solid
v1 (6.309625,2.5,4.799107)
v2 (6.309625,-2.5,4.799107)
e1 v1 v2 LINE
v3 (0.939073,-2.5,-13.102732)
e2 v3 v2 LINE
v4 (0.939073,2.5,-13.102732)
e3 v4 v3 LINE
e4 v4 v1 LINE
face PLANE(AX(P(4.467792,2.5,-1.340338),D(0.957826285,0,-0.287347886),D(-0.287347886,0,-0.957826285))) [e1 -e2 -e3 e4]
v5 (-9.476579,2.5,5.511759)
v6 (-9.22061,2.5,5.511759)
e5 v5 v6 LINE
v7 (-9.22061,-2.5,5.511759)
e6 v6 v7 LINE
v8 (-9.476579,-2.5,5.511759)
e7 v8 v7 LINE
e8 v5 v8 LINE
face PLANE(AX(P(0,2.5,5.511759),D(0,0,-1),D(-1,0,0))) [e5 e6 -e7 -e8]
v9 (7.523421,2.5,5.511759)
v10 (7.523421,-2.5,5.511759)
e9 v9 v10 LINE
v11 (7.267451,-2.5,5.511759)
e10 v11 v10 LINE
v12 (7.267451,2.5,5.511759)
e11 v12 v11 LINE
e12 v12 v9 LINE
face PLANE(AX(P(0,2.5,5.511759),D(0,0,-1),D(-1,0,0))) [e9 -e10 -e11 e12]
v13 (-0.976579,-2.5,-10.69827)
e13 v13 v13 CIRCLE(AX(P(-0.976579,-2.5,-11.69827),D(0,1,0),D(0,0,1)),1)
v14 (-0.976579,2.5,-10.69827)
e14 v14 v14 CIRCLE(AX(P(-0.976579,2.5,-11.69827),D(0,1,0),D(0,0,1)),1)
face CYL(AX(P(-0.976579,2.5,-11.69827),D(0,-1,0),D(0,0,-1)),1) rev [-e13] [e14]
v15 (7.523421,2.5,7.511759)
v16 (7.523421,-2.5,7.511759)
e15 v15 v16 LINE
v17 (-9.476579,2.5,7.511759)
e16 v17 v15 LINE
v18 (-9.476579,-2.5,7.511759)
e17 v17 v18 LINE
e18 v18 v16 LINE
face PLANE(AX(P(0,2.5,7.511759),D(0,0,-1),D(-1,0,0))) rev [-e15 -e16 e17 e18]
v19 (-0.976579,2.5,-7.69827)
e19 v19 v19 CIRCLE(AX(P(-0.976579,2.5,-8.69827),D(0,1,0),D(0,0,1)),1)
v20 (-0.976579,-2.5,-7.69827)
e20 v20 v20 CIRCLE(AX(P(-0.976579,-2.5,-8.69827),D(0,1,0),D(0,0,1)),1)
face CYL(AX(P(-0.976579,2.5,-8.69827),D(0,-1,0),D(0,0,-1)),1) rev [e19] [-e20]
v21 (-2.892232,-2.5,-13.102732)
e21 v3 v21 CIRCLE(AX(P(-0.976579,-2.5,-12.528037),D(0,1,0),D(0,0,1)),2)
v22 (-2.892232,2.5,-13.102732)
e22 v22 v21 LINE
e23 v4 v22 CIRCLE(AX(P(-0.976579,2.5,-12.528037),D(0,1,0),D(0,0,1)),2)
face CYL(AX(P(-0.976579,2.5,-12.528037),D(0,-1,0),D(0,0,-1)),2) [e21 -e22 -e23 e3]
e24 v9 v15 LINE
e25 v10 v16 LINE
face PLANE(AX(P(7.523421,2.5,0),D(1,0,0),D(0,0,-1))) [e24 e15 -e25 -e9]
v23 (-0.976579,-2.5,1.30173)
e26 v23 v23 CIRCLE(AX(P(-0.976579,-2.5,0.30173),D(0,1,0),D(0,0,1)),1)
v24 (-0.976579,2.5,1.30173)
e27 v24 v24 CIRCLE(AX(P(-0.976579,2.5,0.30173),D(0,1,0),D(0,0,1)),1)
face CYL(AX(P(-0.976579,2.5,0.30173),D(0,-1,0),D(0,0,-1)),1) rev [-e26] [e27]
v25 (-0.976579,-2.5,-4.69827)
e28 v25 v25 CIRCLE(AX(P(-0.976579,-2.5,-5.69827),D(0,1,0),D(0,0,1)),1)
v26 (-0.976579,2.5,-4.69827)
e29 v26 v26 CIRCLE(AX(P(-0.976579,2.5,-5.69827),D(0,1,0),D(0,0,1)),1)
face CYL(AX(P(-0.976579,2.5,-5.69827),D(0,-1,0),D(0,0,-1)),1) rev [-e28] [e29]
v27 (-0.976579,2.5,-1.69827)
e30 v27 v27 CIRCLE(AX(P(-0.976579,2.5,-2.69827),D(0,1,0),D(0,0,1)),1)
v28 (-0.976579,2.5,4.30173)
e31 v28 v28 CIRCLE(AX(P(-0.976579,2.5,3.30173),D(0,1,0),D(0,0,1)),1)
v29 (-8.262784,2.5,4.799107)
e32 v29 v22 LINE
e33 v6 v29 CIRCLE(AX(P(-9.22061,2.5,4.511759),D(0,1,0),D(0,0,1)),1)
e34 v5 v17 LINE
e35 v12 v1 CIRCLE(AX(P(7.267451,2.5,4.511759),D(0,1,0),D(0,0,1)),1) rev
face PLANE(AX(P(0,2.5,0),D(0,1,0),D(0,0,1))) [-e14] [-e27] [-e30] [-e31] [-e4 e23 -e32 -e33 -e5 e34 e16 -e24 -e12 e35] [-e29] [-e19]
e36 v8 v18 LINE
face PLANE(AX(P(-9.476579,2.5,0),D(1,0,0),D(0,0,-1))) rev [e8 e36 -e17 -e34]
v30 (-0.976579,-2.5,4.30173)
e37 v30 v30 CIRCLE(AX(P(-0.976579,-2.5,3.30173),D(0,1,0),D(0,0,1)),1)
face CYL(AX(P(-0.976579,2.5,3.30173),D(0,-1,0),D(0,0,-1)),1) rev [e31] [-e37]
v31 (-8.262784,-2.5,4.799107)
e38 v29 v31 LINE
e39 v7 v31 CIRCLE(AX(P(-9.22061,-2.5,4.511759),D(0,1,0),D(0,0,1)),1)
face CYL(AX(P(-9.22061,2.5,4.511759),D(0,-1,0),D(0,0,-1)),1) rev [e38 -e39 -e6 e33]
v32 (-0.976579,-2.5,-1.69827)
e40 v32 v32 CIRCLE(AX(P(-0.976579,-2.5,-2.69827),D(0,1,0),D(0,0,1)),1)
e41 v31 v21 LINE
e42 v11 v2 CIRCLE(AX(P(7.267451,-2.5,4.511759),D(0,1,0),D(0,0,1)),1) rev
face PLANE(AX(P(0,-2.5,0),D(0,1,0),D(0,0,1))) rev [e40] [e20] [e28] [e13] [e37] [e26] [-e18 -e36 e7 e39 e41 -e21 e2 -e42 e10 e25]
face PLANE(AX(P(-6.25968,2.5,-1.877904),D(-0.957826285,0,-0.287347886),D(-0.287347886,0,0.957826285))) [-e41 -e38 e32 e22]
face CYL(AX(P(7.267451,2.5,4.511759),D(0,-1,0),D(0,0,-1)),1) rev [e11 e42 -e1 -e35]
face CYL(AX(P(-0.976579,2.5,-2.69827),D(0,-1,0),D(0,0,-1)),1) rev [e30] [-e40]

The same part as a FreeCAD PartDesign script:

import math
import FreeCAD as App
import Part
import Sketcher

V = App.Vector

doc = App.newDocument("Part")
params = doc.addObject("Spreadsheet::Sheet", "Params")
for row, (alias, value) in enumerate([
    ("sketch1_diameter", "2 mm"),
    ("sketch1_radius", "2 mm"),
    ("sketch1_width", "17 mm"),
    ("sketch1_height", "2 mm"),
    ("pad1_length", "5 mm"),
], start=1):
    params.set(f"A{row}", alias)
    params.set(f"B{row}", "=" + value)
    params.setAlias(f"B{row}", alias)

body = doc.addObject("PartDesign::Body", "Body")

# Sketch on XZ plane
sketch1 = body.newObject("Sketcher::SketchObject", "Sketch")
sketch1.AttachmentSupport = (doc.getObject("XZ_Plane"), [""])
sketch1.MapMode = "FlatFace"
sketch1.addGeometry([
    Part.LineSegment(V(-2.89, -13.1, 0), V(-8.26, 4.8, 0)),  # 0
    Part.ArcOfCircle(Part.Circle(V(-9.22, 4.51, 0), V(0, 0, 1), 1), math.radians(17), math.radians(90)),  # 1
    Part.LineSegment(V(-9.22, 5.51, 0), V(-9.48, 5.51, 0)),  # 2
    Part.LineSegment(V(-9.48, 5.51, 0), V(-9.48, 7.51, 0)),  # 3
    Part.LineSegment(V(-9.48, 7.51, 0), V(7.52, 7.51, 0)),  # 4
    Part.LineSegment(V(7.52, 7.51, 0), V(7.52, 5.51, 0)),  # 5
    Part.LineSegment(V(7.52, 5.51, 0), V(7.27, 5.51, 0)),  # 6
    Part.ArcOfCircle(Part.Circle(V(7.27, 4.51, 0), V(0, 0, 1), 1), math.radians(90), math.radians(163)),  # 7
    Part.LineSegment(V(6.31, 4.8, 0), V(0.94, -13.1, 0)),  # 8
    Part.ArcOfCircle(Part.Circle(V(-0.98, -12.53, 0), V(0, 0, 1), 2), math.radians(-163), math.radians(-17)),  # 9
    Part.Circle(V(-0.98, 3.3, 0), V(0, 0, 1), 1),  # 10
    Part.Circle(V(-0.98, 0.3, 0), V(0, 0, 1), 1),  # 11
    Part.Circle(V(-0.98, -2.7, 0), V(0, 0, 1), 1),  # 12
    Part.Circle(V(-0.98, -5.7, 0), V(0, 0, 1), 1),  # 13
    Part.Circle(V(-0.98, -8.7, 0), V(0, 0, 1), 1),  # 14
    Part.Circle(V(-0.98, -11.7, 0), V(0, 0, 1), 1),  # 15
], False)
sketch1.addConstraint([
    Sketcher.Constraint("Tangent", 0, 2, 1, 1),
    Sketcher.Constraint("Tangent", 1, 2, 2, 1),
    Sketcher.Constraint("Coincident", 2, 2, 3, 1),
    Sketcher.Constraint("Coincident", 3, 2, 4, 1),
    Sketcher.Constraint("Coincident", 4, 2, 5, 1),
    Sketcher.Constraint("Coincident", 5, 2, 6, 1),
    Sketcher.Constraint("Tangent", 6, 2, 7, 1),
    Sketcher.Constraint("Tangent", 7, 2, 8, 1),
    Sketcher.Constraint("Tangent", 8, 2, 9, 2),
    Sketcher.Constraint("Tangent", 9, 1, 0, 1),
    Sketcher.Constraint("Horizontal", 2),
    Sketcher.Constraint("Vertical", 3),
    Sketcher.Constraint("Horizontal", 4),
    Sketcher.Constraint("Vertical", 5),
    Sketcher.Constraint("Horizontal", 6),
    Sketcher.Constraint("Equal", 1, 7),
    Sketcher.Constraint("Equal", 7, 10),
    Sketcher.Constraint("Equal", 10, 11),
    Sketcher.Constraint("Equal", 11, 12),
    Sketcher.Constraint("Equal", 12, 13),
    Sketcher.Constraint("Equal", 13, 14),
    Sketcher.Constraint("Equal", 14, 15),
    Sketcher.Constraint("Horizontal", 1, 3, 7, 3),
    Sketcher.Constraint("Horizontal", 0, 2, 7, 2),
    Sketcher.Constraint("Vertical", 9, 3, 10, 3),
    Sketcher.Constraint("Vertical", 10, 3, 11, 3),
    Sketcher.Constraint("Vertical", 11, 3, 12, 3),
    Sketcher.Constraint("Vertical", 12, 3, 13, 3),
    Sketcher.Constraint("Vertical", 13, 3, 14, 3),
    Sketcher.Constraint("Vertical", 14, 3, 15, 3),
    Sketcher.Constraint("Equal", 2, 6),
    Sketcher.Constraint("Diameter", 10, 2.0),
    Sketcher.Constraint("Radius", 9, 2.0),
    Sketcher.Constraint("DistanceX", 4, 1, 4, 2, 17.0),
    Sketcher.Constraint("DistanceY", 3, 1, 3, 2, 2.0),
    Sketcher.Constraint("DistanceY", 11, 3, 10, 3, 3.0),
    Sketcher.Constraint("DistanceY", 12, 3, 11, 3, 3.0),
    Sketcher.Constraint("DistanceY", 13, 3, 12, 3, 3.0),
    Sketcher.Constraint("DistanceY", 14, 3, 13, 3, 3.0),
    Sketcher.Constraint("DistanceY", 15, 3, 14, 3, 3.0),
    Sketcher.Constraint("DistanceX", 2, 2, 2, 1, 0.255969),
    Sketcher.Constraint("Distance", 0, 18.690069),
    Sketcher.Constraint("DistanceX", 1, 3, -1, 1, 9.22061),
    Sketcher.Constraint("DistanceY", -1, 1, 1, 3, 4.511759),
    Sketcher.Constraint("DistanceY", -1, 1, 10, 3, 3.30173),
])
sketch1.setExpression("Constraints[31]", "Params.sketch1_diameter")
sketch1.setExpression("Constraints[32]", "Params.sketch1_radius")
sketch1.setExpression("Constraints[33]", "Params.sketch1_width")
sketch1.setExpression("Constraints[34]", "Params.sketch1_height")
pad1 = body.newObject("PartDesign::Pad", "Pad")
pad1.Profile = sketch1
pad1.setExpression("Length", "Params.pad1_length")
pad1.Midplane = True

doc.recompute()
